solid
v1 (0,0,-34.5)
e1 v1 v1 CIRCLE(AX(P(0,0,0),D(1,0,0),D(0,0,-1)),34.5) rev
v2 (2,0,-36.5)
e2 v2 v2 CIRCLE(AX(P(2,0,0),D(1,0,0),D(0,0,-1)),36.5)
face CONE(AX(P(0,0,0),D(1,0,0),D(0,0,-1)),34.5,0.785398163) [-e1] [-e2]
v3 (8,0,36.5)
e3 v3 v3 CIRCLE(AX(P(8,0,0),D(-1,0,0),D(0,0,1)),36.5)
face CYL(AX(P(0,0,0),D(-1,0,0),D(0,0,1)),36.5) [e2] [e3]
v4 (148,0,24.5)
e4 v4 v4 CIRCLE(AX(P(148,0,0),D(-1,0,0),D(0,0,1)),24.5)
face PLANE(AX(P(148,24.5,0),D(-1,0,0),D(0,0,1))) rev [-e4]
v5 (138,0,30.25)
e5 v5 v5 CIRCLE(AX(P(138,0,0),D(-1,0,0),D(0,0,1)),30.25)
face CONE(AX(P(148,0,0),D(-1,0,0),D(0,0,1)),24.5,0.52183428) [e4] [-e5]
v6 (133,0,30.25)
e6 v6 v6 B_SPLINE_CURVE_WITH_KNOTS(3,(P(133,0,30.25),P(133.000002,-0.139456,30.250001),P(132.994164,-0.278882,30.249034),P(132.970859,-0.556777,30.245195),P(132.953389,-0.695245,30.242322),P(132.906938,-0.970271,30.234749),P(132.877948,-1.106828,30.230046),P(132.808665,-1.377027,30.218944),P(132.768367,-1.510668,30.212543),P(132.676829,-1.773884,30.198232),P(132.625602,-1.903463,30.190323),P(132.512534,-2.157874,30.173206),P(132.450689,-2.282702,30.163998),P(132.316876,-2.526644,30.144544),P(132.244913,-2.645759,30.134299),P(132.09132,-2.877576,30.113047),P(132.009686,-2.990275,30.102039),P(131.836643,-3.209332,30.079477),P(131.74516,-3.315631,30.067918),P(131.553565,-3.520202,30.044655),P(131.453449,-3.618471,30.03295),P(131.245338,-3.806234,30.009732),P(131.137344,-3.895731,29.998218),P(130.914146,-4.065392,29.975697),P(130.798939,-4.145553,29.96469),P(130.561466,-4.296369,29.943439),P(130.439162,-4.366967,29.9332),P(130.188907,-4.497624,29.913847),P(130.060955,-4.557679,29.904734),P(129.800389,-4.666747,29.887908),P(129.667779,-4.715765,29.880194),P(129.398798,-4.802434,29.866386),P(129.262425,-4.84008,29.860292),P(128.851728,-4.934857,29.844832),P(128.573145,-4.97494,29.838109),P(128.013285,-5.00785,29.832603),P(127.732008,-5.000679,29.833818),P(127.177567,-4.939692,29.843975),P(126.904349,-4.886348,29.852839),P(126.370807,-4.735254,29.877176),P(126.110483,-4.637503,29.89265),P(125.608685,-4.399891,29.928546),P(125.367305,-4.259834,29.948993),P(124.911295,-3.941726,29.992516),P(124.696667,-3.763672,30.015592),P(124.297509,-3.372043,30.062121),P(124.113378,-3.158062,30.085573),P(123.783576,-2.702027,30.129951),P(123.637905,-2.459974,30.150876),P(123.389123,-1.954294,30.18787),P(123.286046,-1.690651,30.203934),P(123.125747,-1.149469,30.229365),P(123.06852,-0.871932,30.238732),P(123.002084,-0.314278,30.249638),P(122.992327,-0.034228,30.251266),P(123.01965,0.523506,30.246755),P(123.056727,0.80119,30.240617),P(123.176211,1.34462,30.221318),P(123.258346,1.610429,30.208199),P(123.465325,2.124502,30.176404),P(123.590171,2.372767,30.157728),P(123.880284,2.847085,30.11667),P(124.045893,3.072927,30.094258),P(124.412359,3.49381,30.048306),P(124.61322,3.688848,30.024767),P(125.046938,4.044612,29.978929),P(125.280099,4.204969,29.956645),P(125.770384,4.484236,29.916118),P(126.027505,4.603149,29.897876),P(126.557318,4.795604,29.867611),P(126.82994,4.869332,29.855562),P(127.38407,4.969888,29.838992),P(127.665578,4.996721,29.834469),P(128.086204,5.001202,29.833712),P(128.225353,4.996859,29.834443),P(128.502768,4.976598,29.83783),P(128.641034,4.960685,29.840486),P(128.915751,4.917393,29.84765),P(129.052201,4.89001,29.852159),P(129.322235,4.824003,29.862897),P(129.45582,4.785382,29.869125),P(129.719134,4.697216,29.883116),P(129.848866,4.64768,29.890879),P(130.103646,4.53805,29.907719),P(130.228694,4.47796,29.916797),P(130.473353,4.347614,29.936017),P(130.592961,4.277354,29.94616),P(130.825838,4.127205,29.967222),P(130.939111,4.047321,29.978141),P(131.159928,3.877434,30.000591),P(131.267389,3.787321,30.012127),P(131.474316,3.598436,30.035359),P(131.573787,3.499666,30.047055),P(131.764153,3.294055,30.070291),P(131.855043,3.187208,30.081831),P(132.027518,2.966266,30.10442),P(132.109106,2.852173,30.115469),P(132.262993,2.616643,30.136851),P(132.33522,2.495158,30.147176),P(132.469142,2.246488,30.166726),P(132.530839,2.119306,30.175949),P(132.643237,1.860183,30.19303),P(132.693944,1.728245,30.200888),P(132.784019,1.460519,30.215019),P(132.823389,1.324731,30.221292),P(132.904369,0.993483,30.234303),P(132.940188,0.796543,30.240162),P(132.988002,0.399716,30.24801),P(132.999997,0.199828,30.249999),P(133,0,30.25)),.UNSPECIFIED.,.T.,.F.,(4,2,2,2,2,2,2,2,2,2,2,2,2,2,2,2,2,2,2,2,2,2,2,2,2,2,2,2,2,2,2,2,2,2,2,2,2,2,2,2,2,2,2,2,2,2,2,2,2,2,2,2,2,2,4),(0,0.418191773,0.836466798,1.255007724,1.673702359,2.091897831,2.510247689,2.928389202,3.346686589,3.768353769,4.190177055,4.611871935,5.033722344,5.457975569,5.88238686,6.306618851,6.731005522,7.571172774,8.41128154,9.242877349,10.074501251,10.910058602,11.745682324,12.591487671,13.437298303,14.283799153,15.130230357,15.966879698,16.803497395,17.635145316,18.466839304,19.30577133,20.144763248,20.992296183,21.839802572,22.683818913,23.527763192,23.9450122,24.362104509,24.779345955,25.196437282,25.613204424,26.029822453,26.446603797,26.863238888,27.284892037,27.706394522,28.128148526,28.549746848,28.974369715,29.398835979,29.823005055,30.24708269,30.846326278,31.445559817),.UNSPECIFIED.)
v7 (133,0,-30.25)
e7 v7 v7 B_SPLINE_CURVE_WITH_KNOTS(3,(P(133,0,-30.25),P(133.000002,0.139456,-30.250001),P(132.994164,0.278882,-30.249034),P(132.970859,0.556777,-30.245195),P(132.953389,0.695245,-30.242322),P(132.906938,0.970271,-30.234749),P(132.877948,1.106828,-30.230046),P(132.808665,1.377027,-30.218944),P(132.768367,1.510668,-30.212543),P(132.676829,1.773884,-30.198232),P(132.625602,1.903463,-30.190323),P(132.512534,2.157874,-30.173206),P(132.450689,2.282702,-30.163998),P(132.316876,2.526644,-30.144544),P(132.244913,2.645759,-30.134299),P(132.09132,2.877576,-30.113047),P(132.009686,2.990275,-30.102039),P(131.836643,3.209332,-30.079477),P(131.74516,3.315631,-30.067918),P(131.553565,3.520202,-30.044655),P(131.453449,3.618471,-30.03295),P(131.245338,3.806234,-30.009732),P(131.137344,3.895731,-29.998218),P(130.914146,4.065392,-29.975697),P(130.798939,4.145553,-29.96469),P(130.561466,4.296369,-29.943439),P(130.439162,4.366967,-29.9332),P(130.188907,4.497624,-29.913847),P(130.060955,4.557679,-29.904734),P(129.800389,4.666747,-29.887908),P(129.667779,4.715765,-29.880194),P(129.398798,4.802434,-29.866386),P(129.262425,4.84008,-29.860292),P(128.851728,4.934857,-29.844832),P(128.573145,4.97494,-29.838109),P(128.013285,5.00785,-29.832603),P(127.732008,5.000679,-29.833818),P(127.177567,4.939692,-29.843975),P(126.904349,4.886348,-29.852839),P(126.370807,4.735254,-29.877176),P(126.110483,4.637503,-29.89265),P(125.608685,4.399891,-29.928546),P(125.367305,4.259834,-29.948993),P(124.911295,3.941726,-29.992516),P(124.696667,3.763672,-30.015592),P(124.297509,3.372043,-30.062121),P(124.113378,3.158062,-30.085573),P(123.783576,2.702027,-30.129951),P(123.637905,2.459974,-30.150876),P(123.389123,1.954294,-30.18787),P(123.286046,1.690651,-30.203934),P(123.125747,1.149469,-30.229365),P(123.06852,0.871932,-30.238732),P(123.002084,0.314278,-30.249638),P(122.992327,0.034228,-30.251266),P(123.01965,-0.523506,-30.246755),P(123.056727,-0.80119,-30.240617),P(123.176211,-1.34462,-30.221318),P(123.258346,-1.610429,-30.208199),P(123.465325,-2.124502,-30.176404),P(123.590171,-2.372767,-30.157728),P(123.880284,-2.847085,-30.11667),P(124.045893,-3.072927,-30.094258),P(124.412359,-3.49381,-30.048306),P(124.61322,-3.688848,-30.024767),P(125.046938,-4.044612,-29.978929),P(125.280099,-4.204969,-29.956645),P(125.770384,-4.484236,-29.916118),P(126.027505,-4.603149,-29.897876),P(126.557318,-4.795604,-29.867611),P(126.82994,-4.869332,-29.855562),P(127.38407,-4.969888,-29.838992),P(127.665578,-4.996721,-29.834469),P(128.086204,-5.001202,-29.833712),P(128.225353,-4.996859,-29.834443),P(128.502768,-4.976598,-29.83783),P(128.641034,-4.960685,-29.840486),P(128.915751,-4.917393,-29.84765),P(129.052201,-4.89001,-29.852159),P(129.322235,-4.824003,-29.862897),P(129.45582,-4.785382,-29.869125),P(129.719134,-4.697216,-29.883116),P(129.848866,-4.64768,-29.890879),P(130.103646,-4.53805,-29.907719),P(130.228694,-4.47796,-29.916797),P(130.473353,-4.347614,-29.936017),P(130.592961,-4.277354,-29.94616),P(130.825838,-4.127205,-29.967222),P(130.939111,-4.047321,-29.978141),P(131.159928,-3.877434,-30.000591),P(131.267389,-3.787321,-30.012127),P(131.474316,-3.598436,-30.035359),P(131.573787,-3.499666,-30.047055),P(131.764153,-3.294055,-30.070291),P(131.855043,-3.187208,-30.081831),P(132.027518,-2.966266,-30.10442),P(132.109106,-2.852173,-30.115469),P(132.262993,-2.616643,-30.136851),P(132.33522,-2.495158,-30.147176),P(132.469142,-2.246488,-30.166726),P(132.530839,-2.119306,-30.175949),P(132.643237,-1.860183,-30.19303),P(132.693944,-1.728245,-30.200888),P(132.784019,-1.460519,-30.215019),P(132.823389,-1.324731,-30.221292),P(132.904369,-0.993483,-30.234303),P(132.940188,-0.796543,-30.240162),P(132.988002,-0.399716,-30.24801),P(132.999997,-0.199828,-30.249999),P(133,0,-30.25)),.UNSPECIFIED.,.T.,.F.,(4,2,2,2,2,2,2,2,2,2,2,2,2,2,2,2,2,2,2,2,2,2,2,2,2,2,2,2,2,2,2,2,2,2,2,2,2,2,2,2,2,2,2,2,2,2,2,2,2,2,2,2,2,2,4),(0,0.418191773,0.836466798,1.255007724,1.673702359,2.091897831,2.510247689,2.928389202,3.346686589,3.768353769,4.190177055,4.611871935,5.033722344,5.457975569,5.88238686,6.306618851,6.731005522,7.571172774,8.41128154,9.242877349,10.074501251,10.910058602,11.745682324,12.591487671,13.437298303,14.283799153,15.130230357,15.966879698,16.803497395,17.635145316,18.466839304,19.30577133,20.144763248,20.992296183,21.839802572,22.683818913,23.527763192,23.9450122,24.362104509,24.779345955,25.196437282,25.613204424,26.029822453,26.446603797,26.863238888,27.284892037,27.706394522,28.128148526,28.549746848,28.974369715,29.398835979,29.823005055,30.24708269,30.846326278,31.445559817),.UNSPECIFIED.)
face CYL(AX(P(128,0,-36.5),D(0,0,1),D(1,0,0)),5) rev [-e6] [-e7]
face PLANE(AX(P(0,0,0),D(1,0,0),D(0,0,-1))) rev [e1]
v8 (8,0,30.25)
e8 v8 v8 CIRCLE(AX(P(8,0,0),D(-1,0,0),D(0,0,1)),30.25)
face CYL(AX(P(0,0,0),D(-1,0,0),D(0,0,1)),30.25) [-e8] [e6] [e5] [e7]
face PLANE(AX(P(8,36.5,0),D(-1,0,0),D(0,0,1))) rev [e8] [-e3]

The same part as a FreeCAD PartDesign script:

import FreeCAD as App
import Part
import Sketcher

V = App.Vector


def edges_at(feature, points):
    """Names of the edges that pass closest to the given points."""
    edges = feature.Shape.Edges
    near = lambda p: min(range(len(edges)), key=lambda i: edges[i].distToShape(Part.Vertex(*p))[0])
    return sorted({f"Edge{near(p) + 1}" for p in points})

doc = App.newDocument("Part")
body = doc.addObject("PartDesign::Body", "Body")

sketch1 = body.newObject("Sketcher::SketchObject", "Sketch")
sketch1.AttachmentSupport = (doc.getObject("XY_Plane"), [""])
sketch1.MapMode = "FlatFace"
sketch1.addGeometry([
    Part.LineSegment(V(0, 36, 0), V(0, 0, 0)),
    Part.LineSegment(V(0, 0, 0), V(148, 0, 0)),
    Part.LineSegment(V(148, 0, 0), V(148, 24, 0)),
    Part.LineSegment(V(148, 24, 0), V(138, 30, 0)),
    Part.LineSegment(V(138, 30, 0), V(8, 30, 0)),
    Part.LineSegment(V(8, 30, 0), V(8, 36, 0)),
    Part.LineSegment(V(8, 36, 0), V(0, 36, 0)),
], False)
sketch1.addConstraint([
    Sketcher.Constraint("Coincident", 0, 2, 1, 1),
    Sketcher.Constraint("Coincident", 1, 2, 2, 1),
    Sketcher.Constraint("Coincident", 2, 2, 3, 1),
    Sketcher.Constraint("Coincident", 3, 2, 4, 1),
    Sketcher.Constraint("Coincident", 4, 2, 5, 1),
    Sketcher.Constraint("Coincident", 5, 2, 6, 1),
    Sketcher.Constraint("Coincident", 6, 2, 0, 1),
    Sketcher.Constraint("Vertical", 0),
    Sketcher.Constraint("Horizontal", 1),
    Sketcher.Constraint("Vertical", 2),
    Sketcher.Constraint("Horizontal", 4),
    Sketcher.Constraint("Vertical", 5),
    Sketcher.Constraint("Horizontal", 6),
    Sketcher.Constraint("Coincident", 0, 2, -1, 1),
    Sketcher.Constraint("DistanceX", 1, 1, 1, 2, 148.0),
    Sketcher.Constraint("DistanceX", 4, 2, 4, 1, 130.0),
    Sketcher.Constraint("DistanceX", 6, 2, 6, 1, 8.0),
    Sketcher.Constraint("DistanceY", 0, 2, 0, 1, 36.5),
    Sketcher.Constraint("DistanceY", 2, 1, 2, 2, 24.5),
    Sketcher.Constraint("DistanceY", 5, 1, 5, 2, 6.25),
])
revolution = body.newObject("PartDesign::Revolution", "Revolution")
revolution.Profile = sketch1
revolution.ReferenceAxis = (sketch1, ["H_Axis"])
revolution.Angle = 360
doc.recompute()

chamfer = body.newObject("PartDesign::Chamfer", "Chamfer")
chamfer.Base = (revolution, edges_at(revolution, [(0, 0, -36.5)]))
chamfer.Size = 2

sketch2 = body.newObject("Sketcher::SketchObject", "Sketch001")
sketch2.AttachmentSupport = (doc.getObject("XY_Plane"), [""])
sketch2.MapMode = "FlatFace"
sketch2.AttachmentOffset = App.Placement(V(0, 0, 40), App.Rotation())
sketch2.addGeometry(Part.Circle(V(128, 0, 0), V(0, 0, 1), 5), False)
sketch2.addConstraint([
    Sketcher.Constraint("PointOnObject", 0, 3, -1),
    Sketcher.Constraint("Diameter", 0, 10.0),
    Sketcher.Constraint("DistanceX", -1, 1, 0, 3, 128.0),
])
pocket1 = body.newObject("PartDesign::Pocket", "Pocket")
pocket1.Profile = sketch2
pocket1.Type = "ThroughAll"

doc.recompute()
